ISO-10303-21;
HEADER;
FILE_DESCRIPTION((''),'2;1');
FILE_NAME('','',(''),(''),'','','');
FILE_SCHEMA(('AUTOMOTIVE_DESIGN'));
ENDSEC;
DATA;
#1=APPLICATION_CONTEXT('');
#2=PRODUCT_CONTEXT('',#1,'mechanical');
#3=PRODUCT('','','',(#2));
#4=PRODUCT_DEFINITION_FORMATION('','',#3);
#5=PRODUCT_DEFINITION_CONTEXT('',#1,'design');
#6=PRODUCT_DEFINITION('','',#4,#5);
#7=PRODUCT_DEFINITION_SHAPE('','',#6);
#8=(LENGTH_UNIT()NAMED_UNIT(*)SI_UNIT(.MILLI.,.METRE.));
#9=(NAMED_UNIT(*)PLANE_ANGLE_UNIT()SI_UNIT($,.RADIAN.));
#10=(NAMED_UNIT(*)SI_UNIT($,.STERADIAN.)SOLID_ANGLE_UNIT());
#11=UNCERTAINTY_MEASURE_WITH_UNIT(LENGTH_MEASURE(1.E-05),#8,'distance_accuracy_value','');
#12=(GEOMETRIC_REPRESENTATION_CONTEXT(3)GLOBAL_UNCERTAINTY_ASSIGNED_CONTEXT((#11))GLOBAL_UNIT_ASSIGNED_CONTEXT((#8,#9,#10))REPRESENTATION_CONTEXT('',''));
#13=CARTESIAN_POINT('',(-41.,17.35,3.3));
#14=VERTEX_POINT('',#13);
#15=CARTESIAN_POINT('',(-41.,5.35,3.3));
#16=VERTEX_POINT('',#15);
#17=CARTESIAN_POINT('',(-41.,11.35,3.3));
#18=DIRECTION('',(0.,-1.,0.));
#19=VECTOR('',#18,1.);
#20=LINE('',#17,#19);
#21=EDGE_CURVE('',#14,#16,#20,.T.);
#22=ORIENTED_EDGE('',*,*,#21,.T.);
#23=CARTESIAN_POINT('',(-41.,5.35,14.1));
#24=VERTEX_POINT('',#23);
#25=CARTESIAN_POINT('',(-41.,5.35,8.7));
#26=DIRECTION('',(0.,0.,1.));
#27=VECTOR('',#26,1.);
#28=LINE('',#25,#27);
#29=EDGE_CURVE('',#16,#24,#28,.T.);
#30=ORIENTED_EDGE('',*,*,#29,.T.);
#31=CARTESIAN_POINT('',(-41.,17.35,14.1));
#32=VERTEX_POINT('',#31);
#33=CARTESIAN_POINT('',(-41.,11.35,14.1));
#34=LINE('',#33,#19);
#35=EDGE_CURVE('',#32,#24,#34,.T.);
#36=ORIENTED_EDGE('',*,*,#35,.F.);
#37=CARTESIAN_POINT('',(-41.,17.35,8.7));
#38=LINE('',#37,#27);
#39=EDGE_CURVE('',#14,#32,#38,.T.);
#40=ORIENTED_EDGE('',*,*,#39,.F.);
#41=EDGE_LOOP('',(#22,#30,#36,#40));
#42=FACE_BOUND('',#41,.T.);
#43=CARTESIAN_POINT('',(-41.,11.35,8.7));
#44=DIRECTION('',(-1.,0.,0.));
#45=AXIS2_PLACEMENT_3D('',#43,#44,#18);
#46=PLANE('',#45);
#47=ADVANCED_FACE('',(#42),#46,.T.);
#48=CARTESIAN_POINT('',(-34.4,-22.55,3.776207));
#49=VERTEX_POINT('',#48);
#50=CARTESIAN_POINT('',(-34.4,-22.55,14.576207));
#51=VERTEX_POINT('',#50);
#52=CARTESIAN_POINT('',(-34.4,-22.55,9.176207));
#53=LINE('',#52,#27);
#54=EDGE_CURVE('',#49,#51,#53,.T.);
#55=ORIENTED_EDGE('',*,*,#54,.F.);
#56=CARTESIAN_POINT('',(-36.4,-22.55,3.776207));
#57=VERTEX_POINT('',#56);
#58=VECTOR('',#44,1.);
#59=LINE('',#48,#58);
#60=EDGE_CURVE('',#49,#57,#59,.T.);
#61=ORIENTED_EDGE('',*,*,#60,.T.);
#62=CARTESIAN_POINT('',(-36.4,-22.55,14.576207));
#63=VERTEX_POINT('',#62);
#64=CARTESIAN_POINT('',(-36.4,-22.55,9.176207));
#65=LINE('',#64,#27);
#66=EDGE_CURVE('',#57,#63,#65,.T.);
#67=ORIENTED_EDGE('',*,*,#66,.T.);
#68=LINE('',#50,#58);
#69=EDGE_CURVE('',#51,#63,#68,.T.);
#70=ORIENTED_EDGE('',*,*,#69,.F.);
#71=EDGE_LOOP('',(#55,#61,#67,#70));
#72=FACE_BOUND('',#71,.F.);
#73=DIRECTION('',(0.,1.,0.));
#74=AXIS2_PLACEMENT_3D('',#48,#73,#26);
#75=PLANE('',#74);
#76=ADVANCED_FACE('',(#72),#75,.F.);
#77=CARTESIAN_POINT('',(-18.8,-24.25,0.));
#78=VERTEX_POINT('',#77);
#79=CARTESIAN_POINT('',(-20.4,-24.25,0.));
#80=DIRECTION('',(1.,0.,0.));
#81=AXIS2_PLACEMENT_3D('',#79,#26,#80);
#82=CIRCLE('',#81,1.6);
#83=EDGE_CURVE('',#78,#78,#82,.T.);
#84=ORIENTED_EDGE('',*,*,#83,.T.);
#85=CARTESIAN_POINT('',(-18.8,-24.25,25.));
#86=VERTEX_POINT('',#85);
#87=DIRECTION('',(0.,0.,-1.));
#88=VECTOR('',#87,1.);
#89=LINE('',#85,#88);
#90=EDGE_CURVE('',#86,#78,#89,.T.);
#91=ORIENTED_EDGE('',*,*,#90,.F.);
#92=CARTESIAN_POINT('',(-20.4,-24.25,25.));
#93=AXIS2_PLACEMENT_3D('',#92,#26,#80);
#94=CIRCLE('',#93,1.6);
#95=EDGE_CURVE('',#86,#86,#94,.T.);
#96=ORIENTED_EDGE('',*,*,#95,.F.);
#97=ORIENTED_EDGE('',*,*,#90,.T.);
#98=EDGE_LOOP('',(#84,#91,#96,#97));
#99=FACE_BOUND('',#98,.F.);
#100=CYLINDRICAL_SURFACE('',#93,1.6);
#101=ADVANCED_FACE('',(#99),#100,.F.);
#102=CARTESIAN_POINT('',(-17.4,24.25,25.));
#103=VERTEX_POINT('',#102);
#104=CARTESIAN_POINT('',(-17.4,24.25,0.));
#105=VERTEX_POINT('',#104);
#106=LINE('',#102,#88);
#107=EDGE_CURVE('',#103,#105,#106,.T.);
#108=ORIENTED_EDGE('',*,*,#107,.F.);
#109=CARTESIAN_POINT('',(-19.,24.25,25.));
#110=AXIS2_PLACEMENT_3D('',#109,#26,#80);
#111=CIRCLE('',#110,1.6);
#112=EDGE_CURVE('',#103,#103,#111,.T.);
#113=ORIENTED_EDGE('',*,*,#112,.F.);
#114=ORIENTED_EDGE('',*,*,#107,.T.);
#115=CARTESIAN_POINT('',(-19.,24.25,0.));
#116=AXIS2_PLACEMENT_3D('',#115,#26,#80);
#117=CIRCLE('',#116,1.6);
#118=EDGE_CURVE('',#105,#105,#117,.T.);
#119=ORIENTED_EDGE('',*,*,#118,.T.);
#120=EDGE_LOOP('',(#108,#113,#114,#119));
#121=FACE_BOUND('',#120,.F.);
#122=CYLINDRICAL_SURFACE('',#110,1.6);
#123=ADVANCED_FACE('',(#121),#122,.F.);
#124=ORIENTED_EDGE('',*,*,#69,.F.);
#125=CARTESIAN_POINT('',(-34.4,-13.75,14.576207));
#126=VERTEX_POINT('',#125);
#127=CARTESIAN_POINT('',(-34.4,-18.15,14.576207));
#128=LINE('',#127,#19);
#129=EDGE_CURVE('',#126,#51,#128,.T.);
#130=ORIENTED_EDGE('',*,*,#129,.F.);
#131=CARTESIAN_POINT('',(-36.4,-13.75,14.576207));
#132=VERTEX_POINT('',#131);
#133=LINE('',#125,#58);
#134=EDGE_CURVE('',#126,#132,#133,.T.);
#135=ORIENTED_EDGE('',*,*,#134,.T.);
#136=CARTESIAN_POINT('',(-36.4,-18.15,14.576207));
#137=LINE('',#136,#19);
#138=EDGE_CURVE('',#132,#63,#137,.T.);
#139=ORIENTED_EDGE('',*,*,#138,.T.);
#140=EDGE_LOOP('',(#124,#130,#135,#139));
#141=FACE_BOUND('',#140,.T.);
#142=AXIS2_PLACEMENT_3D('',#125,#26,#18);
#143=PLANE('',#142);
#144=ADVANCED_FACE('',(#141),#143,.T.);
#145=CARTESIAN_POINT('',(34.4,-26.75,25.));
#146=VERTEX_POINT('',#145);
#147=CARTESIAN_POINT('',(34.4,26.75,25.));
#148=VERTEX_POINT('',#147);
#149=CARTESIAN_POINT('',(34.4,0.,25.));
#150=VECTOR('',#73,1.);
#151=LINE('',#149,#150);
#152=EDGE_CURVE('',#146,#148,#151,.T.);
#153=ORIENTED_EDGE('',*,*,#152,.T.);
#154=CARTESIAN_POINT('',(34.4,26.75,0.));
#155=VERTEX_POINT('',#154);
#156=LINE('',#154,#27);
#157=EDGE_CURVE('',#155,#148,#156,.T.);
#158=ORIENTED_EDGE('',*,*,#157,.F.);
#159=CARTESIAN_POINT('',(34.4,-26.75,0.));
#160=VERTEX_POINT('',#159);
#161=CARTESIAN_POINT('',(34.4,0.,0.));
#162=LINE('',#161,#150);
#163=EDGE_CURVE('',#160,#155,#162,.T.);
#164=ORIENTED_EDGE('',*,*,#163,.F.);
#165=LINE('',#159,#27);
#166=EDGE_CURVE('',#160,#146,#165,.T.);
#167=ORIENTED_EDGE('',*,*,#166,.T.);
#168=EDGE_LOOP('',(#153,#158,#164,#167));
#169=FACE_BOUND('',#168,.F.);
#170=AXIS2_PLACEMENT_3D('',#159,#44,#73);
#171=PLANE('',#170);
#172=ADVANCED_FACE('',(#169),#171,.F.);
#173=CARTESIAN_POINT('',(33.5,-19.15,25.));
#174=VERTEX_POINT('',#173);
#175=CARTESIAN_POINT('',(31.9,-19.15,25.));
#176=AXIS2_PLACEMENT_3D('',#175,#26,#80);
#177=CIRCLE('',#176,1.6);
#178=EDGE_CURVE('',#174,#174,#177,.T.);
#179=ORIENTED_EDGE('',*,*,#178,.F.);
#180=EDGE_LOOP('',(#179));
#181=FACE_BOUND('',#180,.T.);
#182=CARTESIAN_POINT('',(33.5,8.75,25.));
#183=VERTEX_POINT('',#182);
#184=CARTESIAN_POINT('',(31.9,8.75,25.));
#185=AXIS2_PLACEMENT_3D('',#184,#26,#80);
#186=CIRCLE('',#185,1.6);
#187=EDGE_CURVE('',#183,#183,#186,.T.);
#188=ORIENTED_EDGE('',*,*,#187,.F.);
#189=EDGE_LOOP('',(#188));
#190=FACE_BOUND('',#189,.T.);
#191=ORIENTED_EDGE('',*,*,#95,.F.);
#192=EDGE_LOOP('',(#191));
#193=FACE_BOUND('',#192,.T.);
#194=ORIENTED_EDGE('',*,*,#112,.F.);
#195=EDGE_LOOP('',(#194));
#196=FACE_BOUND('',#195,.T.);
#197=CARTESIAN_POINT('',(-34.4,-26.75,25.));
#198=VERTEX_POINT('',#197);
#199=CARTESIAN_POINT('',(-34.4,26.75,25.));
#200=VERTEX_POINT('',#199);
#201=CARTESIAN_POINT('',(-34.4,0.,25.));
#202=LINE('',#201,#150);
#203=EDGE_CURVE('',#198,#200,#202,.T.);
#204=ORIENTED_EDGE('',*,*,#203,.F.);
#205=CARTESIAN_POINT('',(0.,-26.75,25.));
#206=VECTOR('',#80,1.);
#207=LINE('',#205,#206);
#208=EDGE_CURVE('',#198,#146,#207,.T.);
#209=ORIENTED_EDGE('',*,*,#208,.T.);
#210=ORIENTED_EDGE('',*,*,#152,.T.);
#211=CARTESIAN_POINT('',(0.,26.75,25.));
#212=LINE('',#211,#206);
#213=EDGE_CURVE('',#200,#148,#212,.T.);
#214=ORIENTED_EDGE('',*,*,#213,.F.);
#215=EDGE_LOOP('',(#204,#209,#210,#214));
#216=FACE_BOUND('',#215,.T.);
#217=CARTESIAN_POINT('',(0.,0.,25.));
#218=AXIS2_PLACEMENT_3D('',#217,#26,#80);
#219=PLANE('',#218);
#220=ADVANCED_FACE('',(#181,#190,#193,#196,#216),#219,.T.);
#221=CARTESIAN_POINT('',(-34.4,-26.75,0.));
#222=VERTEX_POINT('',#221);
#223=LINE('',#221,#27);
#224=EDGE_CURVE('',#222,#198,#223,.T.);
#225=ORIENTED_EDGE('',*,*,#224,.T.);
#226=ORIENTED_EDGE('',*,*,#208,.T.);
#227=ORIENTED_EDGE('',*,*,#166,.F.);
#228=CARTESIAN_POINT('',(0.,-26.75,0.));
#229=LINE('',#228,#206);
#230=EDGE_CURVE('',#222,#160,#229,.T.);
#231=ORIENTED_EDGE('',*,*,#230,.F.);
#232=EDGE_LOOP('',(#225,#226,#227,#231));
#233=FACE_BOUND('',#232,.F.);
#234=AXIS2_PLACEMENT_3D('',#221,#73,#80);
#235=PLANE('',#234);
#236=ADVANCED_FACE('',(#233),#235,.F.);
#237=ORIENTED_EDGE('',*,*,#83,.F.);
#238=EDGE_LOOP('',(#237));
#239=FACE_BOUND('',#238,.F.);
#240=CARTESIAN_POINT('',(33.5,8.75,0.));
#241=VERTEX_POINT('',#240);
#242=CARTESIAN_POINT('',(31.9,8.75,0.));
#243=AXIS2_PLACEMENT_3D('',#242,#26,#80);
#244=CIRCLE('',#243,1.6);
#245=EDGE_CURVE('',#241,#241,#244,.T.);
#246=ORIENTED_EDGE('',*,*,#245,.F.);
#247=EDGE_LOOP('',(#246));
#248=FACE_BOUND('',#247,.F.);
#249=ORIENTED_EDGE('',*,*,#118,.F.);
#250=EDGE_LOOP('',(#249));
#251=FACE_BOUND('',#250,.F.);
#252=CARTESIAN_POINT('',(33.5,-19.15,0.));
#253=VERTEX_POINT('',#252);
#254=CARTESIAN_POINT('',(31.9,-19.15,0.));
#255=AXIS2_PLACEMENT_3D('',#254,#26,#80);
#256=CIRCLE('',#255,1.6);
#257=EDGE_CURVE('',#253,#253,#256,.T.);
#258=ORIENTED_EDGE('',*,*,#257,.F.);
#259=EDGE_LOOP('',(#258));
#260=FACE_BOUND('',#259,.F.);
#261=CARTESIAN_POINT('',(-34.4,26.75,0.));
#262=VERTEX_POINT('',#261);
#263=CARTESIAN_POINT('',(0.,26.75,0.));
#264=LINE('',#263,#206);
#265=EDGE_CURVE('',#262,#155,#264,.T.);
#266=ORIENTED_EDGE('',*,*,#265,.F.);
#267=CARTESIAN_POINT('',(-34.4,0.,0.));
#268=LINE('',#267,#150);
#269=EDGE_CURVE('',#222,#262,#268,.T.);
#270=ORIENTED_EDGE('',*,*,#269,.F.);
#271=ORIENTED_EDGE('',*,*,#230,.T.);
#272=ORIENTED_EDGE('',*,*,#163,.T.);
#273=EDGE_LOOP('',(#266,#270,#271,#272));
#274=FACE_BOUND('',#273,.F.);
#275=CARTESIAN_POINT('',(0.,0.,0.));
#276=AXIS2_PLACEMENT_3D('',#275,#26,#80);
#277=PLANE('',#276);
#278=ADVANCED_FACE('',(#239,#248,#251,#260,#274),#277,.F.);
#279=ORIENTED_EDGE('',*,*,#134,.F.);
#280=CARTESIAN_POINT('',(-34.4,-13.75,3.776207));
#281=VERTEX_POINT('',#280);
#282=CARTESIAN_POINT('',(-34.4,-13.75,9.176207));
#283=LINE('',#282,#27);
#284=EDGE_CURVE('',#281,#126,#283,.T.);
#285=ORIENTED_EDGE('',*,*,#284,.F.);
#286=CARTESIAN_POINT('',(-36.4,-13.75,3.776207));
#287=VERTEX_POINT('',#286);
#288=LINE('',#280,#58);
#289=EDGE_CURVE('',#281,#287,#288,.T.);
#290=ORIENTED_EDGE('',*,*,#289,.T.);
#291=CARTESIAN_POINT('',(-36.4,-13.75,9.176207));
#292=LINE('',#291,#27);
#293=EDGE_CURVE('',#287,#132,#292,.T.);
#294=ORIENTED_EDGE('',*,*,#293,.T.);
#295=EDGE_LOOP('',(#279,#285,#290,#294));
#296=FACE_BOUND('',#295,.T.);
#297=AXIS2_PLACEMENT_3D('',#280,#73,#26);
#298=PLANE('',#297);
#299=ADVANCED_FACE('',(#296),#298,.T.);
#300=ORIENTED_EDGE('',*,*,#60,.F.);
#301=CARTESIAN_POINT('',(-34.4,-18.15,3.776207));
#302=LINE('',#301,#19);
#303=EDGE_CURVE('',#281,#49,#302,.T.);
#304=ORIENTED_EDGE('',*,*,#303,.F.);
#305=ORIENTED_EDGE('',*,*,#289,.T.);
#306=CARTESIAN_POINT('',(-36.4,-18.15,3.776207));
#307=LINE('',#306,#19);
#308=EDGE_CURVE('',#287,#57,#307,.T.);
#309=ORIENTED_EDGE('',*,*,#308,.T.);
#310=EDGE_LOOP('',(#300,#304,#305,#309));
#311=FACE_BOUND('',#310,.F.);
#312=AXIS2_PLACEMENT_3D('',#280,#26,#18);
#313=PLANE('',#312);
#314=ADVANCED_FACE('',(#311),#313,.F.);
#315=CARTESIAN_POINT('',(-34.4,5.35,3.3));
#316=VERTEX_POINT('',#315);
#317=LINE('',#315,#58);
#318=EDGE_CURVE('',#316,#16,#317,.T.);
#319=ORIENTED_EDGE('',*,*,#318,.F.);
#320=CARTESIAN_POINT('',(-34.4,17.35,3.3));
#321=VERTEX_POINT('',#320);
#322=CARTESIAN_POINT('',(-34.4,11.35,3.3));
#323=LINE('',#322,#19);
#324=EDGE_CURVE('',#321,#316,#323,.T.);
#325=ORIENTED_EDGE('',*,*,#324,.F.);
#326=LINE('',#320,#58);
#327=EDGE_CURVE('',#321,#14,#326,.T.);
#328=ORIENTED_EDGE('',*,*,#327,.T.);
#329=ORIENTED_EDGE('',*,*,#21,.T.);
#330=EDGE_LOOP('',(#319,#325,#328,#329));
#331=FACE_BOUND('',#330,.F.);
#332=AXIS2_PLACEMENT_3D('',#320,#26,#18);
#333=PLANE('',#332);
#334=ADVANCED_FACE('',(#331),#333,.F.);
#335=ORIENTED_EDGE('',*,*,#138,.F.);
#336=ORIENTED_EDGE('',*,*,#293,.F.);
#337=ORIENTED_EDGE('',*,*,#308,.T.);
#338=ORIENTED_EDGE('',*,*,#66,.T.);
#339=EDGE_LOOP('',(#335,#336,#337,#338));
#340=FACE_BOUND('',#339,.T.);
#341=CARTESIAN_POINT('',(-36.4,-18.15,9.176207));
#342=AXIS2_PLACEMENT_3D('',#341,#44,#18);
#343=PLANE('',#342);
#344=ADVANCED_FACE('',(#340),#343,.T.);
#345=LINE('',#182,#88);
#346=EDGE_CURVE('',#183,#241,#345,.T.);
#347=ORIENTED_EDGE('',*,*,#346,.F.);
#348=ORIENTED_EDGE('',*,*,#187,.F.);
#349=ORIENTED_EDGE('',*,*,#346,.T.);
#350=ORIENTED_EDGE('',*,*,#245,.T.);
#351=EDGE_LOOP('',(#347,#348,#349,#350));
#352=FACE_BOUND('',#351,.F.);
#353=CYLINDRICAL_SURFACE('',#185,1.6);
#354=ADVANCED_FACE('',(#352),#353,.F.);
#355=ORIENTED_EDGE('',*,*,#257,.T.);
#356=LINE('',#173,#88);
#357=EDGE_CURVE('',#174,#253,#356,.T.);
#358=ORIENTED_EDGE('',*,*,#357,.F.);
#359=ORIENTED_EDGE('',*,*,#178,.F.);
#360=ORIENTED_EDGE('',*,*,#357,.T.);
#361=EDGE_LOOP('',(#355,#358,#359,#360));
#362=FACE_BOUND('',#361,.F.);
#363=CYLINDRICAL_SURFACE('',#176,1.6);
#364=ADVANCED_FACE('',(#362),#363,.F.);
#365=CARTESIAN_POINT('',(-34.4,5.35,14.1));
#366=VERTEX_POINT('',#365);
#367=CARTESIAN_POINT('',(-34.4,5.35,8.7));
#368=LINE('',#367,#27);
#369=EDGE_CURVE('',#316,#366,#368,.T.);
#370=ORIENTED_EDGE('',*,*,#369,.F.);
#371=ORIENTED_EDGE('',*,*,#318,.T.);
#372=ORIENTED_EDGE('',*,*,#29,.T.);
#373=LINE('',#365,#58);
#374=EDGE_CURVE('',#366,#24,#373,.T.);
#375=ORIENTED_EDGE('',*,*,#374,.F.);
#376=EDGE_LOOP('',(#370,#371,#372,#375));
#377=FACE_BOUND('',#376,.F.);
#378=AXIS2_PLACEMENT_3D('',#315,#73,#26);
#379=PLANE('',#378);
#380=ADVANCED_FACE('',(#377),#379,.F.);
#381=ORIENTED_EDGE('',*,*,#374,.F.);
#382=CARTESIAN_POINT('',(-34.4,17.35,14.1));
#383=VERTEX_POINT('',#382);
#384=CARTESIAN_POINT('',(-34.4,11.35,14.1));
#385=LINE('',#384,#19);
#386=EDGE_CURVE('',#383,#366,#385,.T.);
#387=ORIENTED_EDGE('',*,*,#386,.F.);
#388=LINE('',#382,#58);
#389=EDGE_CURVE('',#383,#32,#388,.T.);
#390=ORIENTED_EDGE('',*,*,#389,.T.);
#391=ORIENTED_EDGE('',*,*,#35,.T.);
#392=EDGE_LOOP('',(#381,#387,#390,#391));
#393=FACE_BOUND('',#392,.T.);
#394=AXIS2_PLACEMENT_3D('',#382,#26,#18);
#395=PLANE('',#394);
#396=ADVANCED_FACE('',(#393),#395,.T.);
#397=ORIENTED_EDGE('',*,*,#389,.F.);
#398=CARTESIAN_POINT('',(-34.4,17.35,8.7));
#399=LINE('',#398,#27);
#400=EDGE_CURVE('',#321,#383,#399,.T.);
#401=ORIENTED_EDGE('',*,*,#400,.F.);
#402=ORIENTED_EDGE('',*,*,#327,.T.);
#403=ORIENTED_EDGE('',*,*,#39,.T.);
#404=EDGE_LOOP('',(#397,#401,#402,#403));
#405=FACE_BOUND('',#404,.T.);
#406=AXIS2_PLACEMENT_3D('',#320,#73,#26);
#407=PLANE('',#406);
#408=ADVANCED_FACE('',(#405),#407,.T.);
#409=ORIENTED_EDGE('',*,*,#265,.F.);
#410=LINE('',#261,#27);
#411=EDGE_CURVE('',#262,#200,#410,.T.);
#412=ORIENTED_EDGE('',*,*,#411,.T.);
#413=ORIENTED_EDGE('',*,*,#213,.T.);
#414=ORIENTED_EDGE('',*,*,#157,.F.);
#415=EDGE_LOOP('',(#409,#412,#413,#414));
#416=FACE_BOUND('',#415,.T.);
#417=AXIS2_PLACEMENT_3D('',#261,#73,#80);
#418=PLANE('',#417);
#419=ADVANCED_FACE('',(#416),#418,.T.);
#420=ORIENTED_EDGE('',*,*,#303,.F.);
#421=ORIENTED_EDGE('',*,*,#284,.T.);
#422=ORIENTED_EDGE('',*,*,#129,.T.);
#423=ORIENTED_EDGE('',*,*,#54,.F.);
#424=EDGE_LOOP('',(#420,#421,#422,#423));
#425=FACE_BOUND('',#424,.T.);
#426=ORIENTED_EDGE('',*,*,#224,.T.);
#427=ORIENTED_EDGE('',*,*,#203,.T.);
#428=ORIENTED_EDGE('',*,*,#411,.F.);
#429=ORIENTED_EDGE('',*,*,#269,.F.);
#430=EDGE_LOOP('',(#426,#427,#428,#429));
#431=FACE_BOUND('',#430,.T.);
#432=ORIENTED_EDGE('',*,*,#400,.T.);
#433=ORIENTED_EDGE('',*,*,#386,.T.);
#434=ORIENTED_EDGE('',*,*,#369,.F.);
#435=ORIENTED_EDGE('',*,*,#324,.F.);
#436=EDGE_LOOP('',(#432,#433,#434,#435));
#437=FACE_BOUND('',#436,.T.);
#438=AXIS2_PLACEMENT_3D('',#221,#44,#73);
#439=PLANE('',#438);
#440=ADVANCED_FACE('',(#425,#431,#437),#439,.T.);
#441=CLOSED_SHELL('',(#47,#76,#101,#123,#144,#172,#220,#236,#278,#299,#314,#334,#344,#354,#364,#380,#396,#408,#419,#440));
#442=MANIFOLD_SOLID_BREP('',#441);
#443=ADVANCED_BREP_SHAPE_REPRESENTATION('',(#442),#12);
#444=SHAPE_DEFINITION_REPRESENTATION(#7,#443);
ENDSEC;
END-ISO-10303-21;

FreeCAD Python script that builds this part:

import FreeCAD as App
import Part
import Sketcher

V = App.Vector
Q = App.Units.Quantity

doc = App.newDocument("Part")
body = doc.addObject("PartDesign::Body", "Body")

# Sketch on XY plane
sketch1 = body.newObject("Sketcher::SketchObject", "Sketch")
sketch1.AttachmentSupport = (doc.getObject("XY_Plane"), [""])
sketch1.MapMode = "FlatFace"
sketch1.addGeometry([
    Part.LineSegment(V(-34, 27, 0), V(-34, -27, 0)),
    Part.LineSegment(V(-34, -27, 0), V(34, -27, 0)),
    Part.LineSegment(V(34, -27, 0), V(34, 27, 0)),
    Part.LineSegment(V(34, 27, 0), V(-34, 27, 0)),
], False)
sketch1.addConstraint([
    Sketcher.Constraint("Coincident", 0, 2, 1, 1),
    Sketcher.Constraint("Coincident", 1, 2, 2, 1),
    Sketcher.Constraint("Coincident", 2, 2, 3, 1),
    Sketcher.Constraint("Coincident", 3, 2, 0, 1),
    Sketcher.Constraint("Vertical", 0),
    Sketcher.Constraint("Horizontal", 1),
    Sketcher.Constraint("Vertical", 2),
    Sketcher.Constraint("Horizontal", 3),
    Sketcher.Constraint("Symmetric", 0, 2, 2, 2, -1, 1),
    Sketcher.Constraint("DistanceX", 1, 1, 1, 2, Q("68.8 mm")),
    Sketcher.Constraint("DistanceY", 0, 2, 0, 1, Q("53.5 mm")),
])
pad1 = body.newObject("PartDesign::Pad", "Pad")
pad1.Profile = sketch1
pad1.Length = 25

# Sketch on XY plane
sketch2 = body.newObject("Sketcher::SketchObject", "Sketch001")
sketch2.AttachmentSupport = (doc.getObject("XY_Plane"), [""])
sketch2.MapMode = "FlatFace"
sketch2.AttachmentOffset = App.Placement(V(0, 0, 25), App.Rotation())
sketch2.addGeometry([
    Part.Circle(V(-19, 24.2, 0), V(0, 0, 1), 1.6),
    Part.Circle(V(31.9, 8.8, 0), V(0, 0, 1), 1.6),
    Part.Circle(V(-20.4, -24.2, 0), V(0, 0, 1), 1.6),
    Part.Circle(V(31.9, -19.1, 0), V(0, 0, 1), 1.6),
], False)
sketch2.addConstraint([
    Sketcher.Constraint("Equal", 0, 1),
    Sketcher.Constraint("Equal", 1, 2),
    Sketcher.Constraint("Equal", 2, 3),
    Sketcher.Constraint("Vertical", 1, 3, 3, 3),
    Sketcher.Constraint("Diameter", 0, Q("3.2 mm")),
    Sketcher.Constraint("DistanceX", 0, 3, -1, 1, Q("19 mm")),
    Sketcher.Constraint("DistanceY", 2, 3, 1, 3, Q("33 mm")),
    Sketcher.Constraint("DistanceX", -1, 1, 1, 3, Q("31.9 mm")),
    Sketcher.Constraint("DistanceX", 2, 3, -1, 1, Q("20.4 mm")),
    Sketcher.Constraint("DistanceY", 1, 3, 0, 3, Q("15.5 mm")),
    Sketcher.Constraint("DistanceY", 3, 3, 1, 3, Q("27.9 mm")),
    Sketcher.Constraint("DistanceY", -1, 1, 0, 3, Q("24.25 mm")),
])
pocket1 = body.newObject("PartDesign::Pocket", "Pocket")
pocket1.Profile = sketch2
pocket1.Length = 25

# Sketch on YZ plane
sketch3 = body.newObject("Sketcher::SketchObject", "Sketch002")
sketch3.AttachmentSupport = (doc.getObject("YZ_Plane"), [""])
sketch3.MapMode = "FlatFace"
sketch3.AttachmentOffset = App.Placement(V(0, 0, -34.4), App.Rotation())
sketch3.addGeometry([
    Part.LineSegment(V(17, 14, 0), V(17, 3, 0)),
    Part.LineSegment(V(17, 3, 0), V(5, 3, 0)),
    Part.LineSegment(V(5, 3, 0), V(5, 14, 0)),
    Part.LineSegment(V(5, 14, 0), V(17, 14, 0)),
], False)
sketch3.addConstraint([
    Sketcher.Constraint("Coincident", 0, 2, 1, 1),
    Sketcher.Constraint("Coincident", 1, 2, 2, 1),
    Sketcher.Constraint("Coincident", 2, 2, 3, 1),
    Sketcher.Constraint("Coincident", 3, 2, 0, 1),
    Sketcher.Constraint("Vertical", 0),
    Sketcher.Constraint("Horizontal", 1),
    Sketcher.Constraint("Vertical", 2),
    Sketcher.Constraint("Horizontal", 3),
    Sketcher.Constraint("DistanceX", 1, 2, 1, 1, Q("12 mm")),
    Sketcher.Constraint("DistanceY", 0, 2, 0, 1, Q("10.8 mm")),
    Sketcher.Constraint("DistanceY", -1, 1, 0, 2, Q("3.3 mm")),
    Sketcher.Constraint("DistanceX", -1, 1, 0, 2, Q("17.35 mm")),
])
pad2 = body.newObject("PartDesign::Pad", "Pad001")
pad2.Profile = sketch3
pad2.Length = 6.6
pad2.Reversed = True

# Sketch on YZ plane
sketch4 = body.newObject("Sketcher::SketchObject", "Sketch003")
sketch4.AttachmentSupport = (doc.getObject("YZ_Plane"), [""])
sketch4.MapMode = "FlatFace"
sketch4.AttachmentOffset = App.Placement(V(0, 0, -34.4), App.Rotation())
sketch4.addGeometry([
    Part.LineSegment(V(-14, 15, 0), V(-14, 4, 0)),
    Part.LineSegment(V(-14, 4, 0), V(-23, 4, 0)),
    Part.LineSegment(V(-23, 4, 0), V(-23, 15, 0)),
    Part.LineSegment(V(-23, 15, 0), V(-14, 15, 0)),
], False)
sketch4.addConstraint([
    Sketcher.Constraint("Coincident", 0, 2, 1, 1),
    Sketcher.Constraint("Coincident", 1, 2, 2, 1),
    Sketcher.Constraint("Coincident", 2, 2, 3, 1),
    Sketcher.Constraint("Coincident", 3, 2, 0, 1),
    Sketcher.Constraint("Vertical", 0),
    Sketcher.Constraint("Horizontal", 1),
    Sketcher.Constraint("Vertical", 2),
    Sketcher.Constraint("Horizontal", 3),
    Sketcher.Constraint("DistanceX", 1, 2, 1, 1, Q("8.8 mm")),
    Sketcher.Constraint("DistanceY", 0, 2, 0, 1, Q("10.8 mm")),
    Sketcher.Constraint("DistanceX", 0, 2, -1, 1, Q("13.75 mm")),
    Sketcher.Constraint("DistanceY", -1, 1, 0, 2, Q("3.776207 mm")),
])
pad3 = body.newObject("PartDesign::Pad", "Pad002")
pad3.Profile = sketch4
pad3.Length = 2
pad3.Reversed = True

doc.recompute()
